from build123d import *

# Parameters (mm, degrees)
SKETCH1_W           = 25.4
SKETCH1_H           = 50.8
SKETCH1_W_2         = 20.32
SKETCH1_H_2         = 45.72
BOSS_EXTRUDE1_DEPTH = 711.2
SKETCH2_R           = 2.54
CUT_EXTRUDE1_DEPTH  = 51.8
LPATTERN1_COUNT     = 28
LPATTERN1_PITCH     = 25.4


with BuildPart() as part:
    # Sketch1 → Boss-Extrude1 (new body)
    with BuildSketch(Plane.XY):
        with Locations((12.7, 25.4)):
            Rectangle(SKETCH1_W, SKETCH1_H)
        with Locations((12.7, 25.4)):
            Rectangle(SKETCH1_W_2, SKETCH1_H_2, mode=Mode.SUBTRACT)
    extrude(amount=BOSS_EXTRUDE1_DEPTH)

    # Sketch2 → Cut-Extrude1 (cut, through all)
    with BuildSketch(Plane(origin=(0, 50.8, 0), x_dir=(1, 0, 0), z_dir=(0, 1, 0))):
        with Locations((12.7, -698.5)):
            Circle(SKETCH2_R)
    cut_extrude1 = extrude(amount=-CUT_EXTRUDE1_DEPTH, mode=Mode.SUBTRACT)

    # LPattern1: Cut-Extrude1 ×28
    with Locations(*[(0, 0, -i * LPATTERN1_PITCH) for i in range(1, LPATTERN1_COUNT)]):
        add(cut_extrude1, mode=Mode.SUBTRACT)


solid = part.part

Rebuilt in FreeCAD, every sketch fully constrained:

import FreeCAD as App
import Part
import Sketcher
Q = App.Units.Quantity


def add_polygon(sketch, points):
    """Adds a closed chain of lines whose ends are joined by coincident constraints."""
    first, n = sketch.GeometryCount, len(points)
    for a, b in zip(points, points[1:] + points[:1]):
        sketch.addGeometry(Part.LineSegment(App.Vector(*a, 0), App.Vector(*b, 0)), False)
    for i in range(n):
        sketch.addConstraint(Sketcher.Constraint("Coincident", first + i, 2, first + (i + 1) % n, 1))

doc = App.newDocument("Part")
body = doc.addObject("PartDesign::Body", "Body")

# Sketch on XY plane
sketch1 = body.newObject("Sketcher::SketchObject", "Sketch")
sketch1.AttachmentSupport = (doc.getObject("XY_Plane"), [""])
sketch1.MapMode = "FlatFace"
add_polygon(sketch1, [(0, 50.8), (0, 0), (25.4, 0), (25.4, 50.8)])  # lines 0-3
add_polygon(sketch1, [(22.86, 2.54), (2.54, 2.54), (2.54, 48.26), (22.86, 48.26)])  # lines 4-7
sketch1.addConstraint([
    Sketcher.Constraint("Vertical", 0),
    Sketcher.Constraint("Horizontal", 1),
    Sketcher.Constraint("Vertical", 2),
    Sketcher.Constraint("Horizontal", 3),
    Sketcher.Constraint("Horizontal", 4),
    Sketcher.Constraint("Vertical", 5),
    Sketcher.Constraint("Horizontal", 6),
    Sketcher.Constraint("Vertical", 7),
    Sketcher.Constraint("Coincident", 0, 2, -1, 1),
    Sketcher.Constraint("DistanceX", 1, 1, 1, 2, Q("1 in")),
    Sketcher.Constraint("DistanceY", 0, 2, 0, 1, Q("2 in")),
    Sketcher.Constraint("DistanceX", 4, 2, 4, 1, Q("0.8 in")),
    Sketcher.Constraint("DistanceY", 5, 1, 5, 2, Q("1.8 in")),
    Sketcher.Constraint("DistanceX", -1, 1, 4, 2, Q("0.1 in")),
    Sketcher.Constraint("DistanceY", -1, 1, 4, 2, Q("0.1 in")),
])
pad1 = body.newObject("PartDesign::Pad", "Pad")
pad1.Profile = sketch1
pad1.Length = Q("28 in")

# Sketch on XZ plane
sketch2 = body.newObject("Sketcher::SketchObject", "Sketch001")
sketch2.AttachmentSupport = (doc.getObject("XZ_Plane"), [""])
sketch2.MapMode = "FlatFace"
sketch2.AttachmentOffset = App.Placement(App.Vector(0, 0, -2 * 25.4), App.Rotation())
sketch2.addGeometry(Part.Circle(App.Vector(12.7, 698.5, 0), App.Vector(0, 0, 1), 2.54), False)
sketch2.addConstraint([
    Sketcher.Constraint("Diameter", 0, Q("0.2 in")),
    Sketcher.Constraint("DistanceX", -1, 1, 0, 3, Q("0.5 in")),
    Sketcher.Constraint("DistanceY", -1, 1, 0, 3, Q("27.5 in")),
])
pocket1 = body.newObject("PartDesign::Pocket", "Pocket")
pocket1.Profile = sketch2
pocket1.Type = "ThroughAll"
pocket1.Reversed = True
doc.recompute()

linearpattern = body.newObject("PartDesign::LinearPattern", "LinearPattern")
linearpattern.Originals = [pocket1]
linearpattern.Direction = (doc.getObject("Z_Axis"), [""])
linearpattern.Mode = "offset"
linearpattern.Offset = Q("1 in")
linearpattern.Occurrences = 28
linearpattern.Reversed = True
body.Tip = linearpattern

doc.recompute()
